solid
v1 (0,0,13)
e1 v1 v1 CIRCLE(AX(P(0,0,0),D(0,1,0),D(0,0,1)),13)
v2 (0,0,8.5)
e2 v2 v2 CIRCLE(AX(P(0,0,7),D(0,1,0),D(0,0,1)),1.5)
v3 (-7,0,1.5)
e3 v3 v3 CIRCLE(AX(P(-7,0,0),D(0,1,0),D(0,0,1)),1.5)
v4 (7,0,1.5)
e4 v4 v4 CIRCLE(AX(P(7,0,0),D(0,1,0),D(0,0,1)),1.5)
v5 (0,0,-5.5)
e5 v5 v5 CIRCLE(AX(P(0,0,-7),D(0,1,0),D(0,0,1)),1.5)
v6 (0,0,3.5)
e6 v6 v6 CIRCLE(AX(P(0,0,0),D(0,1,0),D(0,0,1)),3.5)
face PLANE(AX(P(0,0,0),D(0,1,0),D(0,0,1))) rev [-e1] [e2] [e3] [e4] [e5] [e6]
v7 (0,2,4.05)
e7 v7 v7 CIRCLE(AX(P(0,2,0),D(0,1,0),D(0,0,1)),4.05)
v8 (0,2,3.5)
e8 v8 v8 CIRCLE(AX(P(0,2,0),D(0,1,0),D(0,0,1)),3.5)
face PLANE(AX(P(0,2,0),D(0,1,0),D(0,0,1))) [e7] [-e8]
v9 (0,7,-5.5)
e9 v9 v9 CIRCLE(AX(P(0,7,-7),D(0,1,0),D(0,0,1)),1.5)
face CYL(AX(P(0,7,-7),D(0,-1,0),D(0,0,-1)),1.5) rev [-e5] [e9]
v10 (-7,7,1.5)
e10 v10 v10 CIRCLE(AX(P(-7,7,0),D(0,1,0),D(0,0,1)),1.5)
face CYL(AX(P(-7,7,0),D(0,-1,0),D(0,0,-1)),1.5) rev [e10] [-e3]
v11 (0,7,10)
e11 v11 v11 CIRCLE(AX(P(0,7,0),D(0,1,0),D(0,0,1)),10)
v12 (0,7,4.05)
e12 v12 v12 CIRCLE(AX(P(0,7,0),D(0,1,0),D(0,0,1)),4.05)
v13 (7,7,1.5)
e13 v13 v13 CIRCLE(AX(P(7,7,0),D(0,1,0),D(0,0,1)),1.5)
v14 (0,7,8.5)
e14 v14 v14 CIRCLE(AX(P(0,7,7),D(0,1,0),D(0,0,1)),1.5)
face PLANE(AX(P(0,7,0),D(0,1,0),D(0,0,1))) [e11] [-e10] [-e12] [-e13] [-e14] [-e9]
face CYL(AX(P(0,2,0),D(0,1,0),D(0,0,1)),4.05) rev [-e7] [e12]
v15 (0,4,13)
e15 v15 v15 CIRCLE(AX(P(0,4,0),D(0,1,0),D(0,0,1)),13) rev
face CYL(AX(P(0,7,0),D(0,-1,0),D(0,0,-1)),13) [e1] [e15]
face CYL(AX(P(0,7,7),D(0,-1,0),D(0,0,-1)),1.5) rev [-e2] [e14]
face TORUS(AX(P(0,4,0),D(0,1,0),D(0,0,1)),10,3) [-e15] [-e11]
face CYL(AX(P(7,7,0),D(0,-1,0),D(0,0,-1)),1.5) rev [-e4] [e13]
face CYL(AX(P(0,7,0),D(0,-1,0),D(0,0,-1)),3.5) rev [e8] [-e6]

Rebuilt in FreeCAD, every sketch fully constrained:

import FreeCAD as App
import Part
import Sketcher

V = App.Vector
Q = App.Units.Quantity


def edges_at(feature, points):
    """Names of the edges that pass closest to the given points."""
    edges = feature.Shape.Edges
    near = lambda p: min(range(len(edges)), key=lambda i: edges[i].distToShape(Part.Vertex(*p))[0])
    return sorted({f"Edge{near(p) + 1}" for p in points})

doc = App.newDocument("Part")
body = doc.addObject("PartDesign::Body", "Body")

# Sketch on XZ plane
sketch1 = body.newObject("Sketcher::SketchObject", "Sketch")
sketch1.AttachmentSupport = (doc.getObject("XZ_Plane"), [""])
sketch1.MapMode = "FlatFace"
sketch1.addGeometry([
    Part.Circle(V(0, 0, 0), V(0, 0, 1), 13),  # 0
    Part.Circle(V(0, -7, 0), V(0, 0, 1), 1.5),  # 1
    Part.Circle(V(-7, 0, 0), V(0, 0, 1), 1.5),  # 2
    Part.Circle(V(0, 0, 0), V(0, 0, 1), 3.5),  # 3
    Part.Circle(V(7, 0, 0), V(0, 0, 1), 1.5),  # 4
    Part.Circle(V(0, 7, 0), V(0, 0, 1), 1.5),  # 5
], False)
sketch1.addConstraint([
    Sketcher.Constraint("Coincident", 0, 3, -1, 1),
    Sketcher.Constraint("Coincident", 3, 3, -1, 1),
    Sketcher.Constraint("Equal", 1, 2),
    Sketcher.Constraint("Equal", 2, 4),
    Sketcher.Constraint("Equal", 4, 5),
    Sketcher.Constraint("Symmetric", 2, 3, 4, 3, -1, 1),
    Sketcher.Constraint("Symmetric", 1, 3, 5, 3, -1, 1),
    Sketcher.Constraint("PointOnObject", 1, 3, -2),
    Sketcher.Constraint("PointOnObject", 2, 3, -1),
    Sketcher.Constraint("Diameter", 0, Q("26 mm")),
    Sketcher.Constraint("Diameter", 1, Q("3 mm")),
    Sketcher.Constraint("Diameter", 3, Q("7 mm")),
    Sketcher.Constraint("DistanceY", 1, 3, -1, 1, Q("7 mm")),
    Sketcher.Constraint("DistanceX", 2, 3, -1, 1, Q("7 mm")),
])
pad1 = body.newObject("PartDesign::Pad", "Pad")
pad1.Profile = sketch1
pad1.Length = 7
pad1.Reversed = True

# Sketch on XZ plane
sketch2 = body.newObject("Sketcher::SketchObject", "Sketch001")
sketch2.AttachmentSupport = (doc.getObject("XZ_Plane"), [""])
sketch2.MapMode = "FlatFace"
sketch2.AttachmentOffset = App.Placement(V(0, 0, -7), App.Rotation())
sketch2.addGeometry(Part.Circle(V(0, 0, 0), V(0, 0, 1), 4.05), False)
sketch2.addConstraint([
    Sketcher.Constraint("Coincident", 0, 3, -1, 1),
    Sketcher.Constraint("Diameter", 0, Q("8.1 mm")),
])
pocket1 = body.newObject("PartDesign::Pocket", "Pocket")
pocket1.Profile = sketch2
pocket1.Length = 5
pocket1.Reversed = True
doc.recompute()

fillet = body.newObject("PartDesign::Fillet", "Fillet")
fillet.Base = (pocket1, edges_at(pocket1, [(0, 7, -13)]))
fillet.Radius = 3

doc.recompute()
